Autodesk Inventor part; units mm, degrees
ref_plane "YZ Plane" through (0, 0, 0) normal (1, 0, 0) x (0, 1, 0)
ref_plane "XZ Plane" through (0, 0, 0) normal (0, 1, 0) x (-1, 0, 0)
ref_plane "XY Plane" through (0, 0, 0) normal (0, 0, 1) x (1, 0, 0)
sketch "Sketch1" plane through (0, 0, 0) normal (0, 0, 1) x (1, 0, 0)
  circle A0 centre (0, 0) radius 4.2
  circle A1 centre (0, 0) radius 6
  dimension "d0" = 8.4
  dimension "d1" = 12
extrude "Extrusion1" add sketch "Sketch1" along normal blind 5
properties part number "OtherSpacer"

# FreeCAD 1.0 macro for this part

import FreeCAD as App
import Part
import Sketcher

V = App.Vector

doc = App.newDocument("Part")
body = doc.addObject("PartDesign::Body", "Body")

# Sketch on XY plane
sketch1 = body.newObject("Sketcher::SketchObject", "Sketch")
sketch1.AttachmentSupport = (doc.getObject("XY_Plane"), [""])
sketch1.MapMode = "FlatFace"
sketch1.addGeometry(Part.Circle(V(0, 0, 0), V(0, 0, 1), 6), False)
sketch1.addGeometry(Part.Circle(V(0, 0, 0), V(0, 0, 1), 4.2), False)
sketch1.addConstraint(Sketcher.Constraint("Coincident", 0, 3, -1, 1))
sketch1.addConstraint(Sketcher.Constraint("Coincident", 1, 3, -1, 1))
sketch1.addConstraint(Sketcher.Constraint("Diameter", 0, 12.0))
sketch1.addConstraint(Sketcher.Constraint("Diameter", 1, 8.4))
pad1 = body.newObject("PartDesign::Pad", "Pad")
pad1.Profile = sketch1
pad1.Length = 5

doc.recompute()
